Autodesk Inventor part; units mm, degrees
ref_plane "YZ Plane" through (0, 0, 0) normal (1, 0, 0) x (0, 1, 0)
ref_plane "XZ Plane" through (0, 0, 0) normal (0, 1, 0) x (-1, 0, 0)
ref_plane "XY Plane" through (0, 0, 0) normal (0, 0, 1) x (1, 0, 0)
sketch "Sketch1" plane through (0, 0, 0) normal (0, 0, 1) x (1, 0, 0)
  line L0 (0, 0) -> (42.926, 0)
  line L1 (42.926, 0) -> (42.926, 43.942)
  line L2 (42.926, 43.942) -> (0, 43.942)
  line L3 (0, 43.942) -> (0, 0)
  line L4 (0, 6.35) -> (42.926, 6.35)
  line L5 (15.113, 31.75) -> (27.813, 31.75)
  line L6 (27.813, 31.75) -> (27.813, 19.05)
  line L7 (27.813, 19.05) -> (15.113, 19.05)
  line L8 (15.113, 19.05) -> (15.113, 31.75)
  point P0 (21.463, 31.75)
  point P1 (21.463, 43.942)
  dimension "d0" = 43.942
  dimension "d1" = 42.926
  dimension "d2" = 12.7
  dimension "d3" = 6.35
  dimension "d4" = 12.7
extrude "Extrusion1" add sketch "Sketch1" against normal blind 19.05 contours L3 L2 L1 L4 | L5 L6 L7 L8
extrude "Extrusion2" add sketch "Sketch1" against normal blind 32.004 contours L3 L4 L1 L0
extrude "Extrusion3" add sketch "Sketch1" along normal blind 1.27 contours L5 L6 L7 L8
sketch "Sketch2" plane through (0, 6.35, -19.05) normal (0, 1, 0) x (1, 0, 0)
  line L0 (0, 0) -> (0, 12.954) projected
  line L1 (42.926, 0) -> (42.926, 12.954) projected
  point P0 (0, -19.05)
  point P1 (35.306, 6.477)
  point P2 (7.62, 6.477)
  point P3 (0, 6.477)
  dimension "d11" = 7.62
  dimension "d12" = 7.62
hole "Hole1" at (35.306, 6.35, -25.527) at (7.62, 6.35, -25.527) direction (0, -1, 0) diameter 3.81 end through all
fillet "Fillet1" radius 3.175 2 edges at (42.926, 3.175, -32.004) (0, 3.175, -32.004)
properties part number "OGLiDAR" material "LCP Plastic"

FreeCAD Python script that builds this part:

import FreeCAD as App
import Part
import Sketcher
from FreeCAD import Vector
Q = App.Units.Quantity


def edges_at(feature, points):
    """Names of the edges that pass closest to the given points."""
    edges = feature.Shape.Edges
    near = lambda p: min(range(len(edges)), key=lambda i: edges[i].distToShape(Part.Vertex(*p))[0])
    return sorted({f"Edge{near(p) + 1}" for p in points})

doc = App.newDocument("Part")
body = doc.addObject("PartDesign::Body", "Body")

# Sketch on XY plane
sketch1 = doc.addObject("Sketcher::SketchObject", "Sketch")
body.addObject(sketch1)
sketch1.AttachmentSupport = (doc.XY_Plane, [""])
sketch1.MapMode = "FlatFace"
sketch1.addGeometry(Part.LineSegment(Vector(0, 43.942, 0), Vector(0, 6.35, 0)), False)
sketch1.addGeometry(Part.LineSegment(Vector(0, 6.35, 0), Vector(42.926, 6.35, 0)), False)
sketch1.addGeometry(Part.LineSegment(Vector(42.926, 6.35, 0), Vector(42.926, 43.942, 0)), False)
sketch1.addGeometry(Part.LineSegment(Vector(42.926, 43.942, 0), Vector(0, 43.942, 0)), False)
sketch1.addConstraint(Sketcher.Constraint("Coincident", 0, 2, 1, 1))
sketch1.addConstraint(Sketcher.Constraint("Coincident", 1, 2, 2, 1))
sketch1.addConstraint(Sketcher.Constraint("Coincident", 2, 2, 3, 1))
sketch1.addConstraint(Sketcher.Constraint("Coincident", 3, 2, 0, 1))
sketch1.addConstraint(Sketcher.Constraint("Vertical", 0))
sketch1.addConstraint(Sketcher.Constraint("Horizontal", 1))
sketch1.addConstraint(Sketcher.Constraint("Vertical", 2))
sketch1.addConstraint(Sketcher.Constraint("Horizontal", 3))
sketch1.addConstraint(Sketcher.Constraint("PointOnObject", 0, 2, -2))
sketch1.addConstraint(Sketcher.Constraint("DistanceX", 1, 1, 1, 2, Q("1.69 in")))
sketch1.addConstraint(Sketcher.Constraint("DistanceY", -1, 1, 0, 2, Q("0.25 in")))
sketch1.addConstraint(Sketcher.Constraint("DistanceY", -1, 1, 2, 2, Q("1.73 in")))
pad1 = doc.addObject("PartDesign::Pad", "Pad")
body.addObject(pad1)
pad1.Profile = sketch1
pad1.Length = Q("0.75 in")
pad1.Reversed = True

# Sketch on XY plane
sketch2 = doc.addObject("Sketcher::SketchObject", "Sketch001")
body.addObject(sketch2)
sketch2.AttachmentSupport = (doc.XY_Plane, [""])
sketch2.MapMode = "FlatFace"
sketch2.addGeometry(Part.LineSegment(Vector(0, 6.35, 0), Vector(0, 0, 0)), False)
sketch2.addGeometry(Part.LineSegment(Vector(0, 0, 0), Vector(42.926, 0, 0)), False)
sketch2.addGeometry(Part.LineSegment(Vector(42.926, 0, 0), Vector(42.926, 6.35, 0)), False)
sketch2.addGeometry(Part.LineSegment(Vector(42.926, 6.35, 0), Vector(0, 6.35, 0)), False)
sketch2.addConstraint(Sketcher.Constraint("Coincident", 0, 2, 1, 1))
sketch2.addConstraint(Sketcher.Constraint("Coincident", 1, 2, 2, 1))
sketch2.addConstraint(Sketcher.Constraint("Coincident", 2, 2, 3, 1))
sketch2.addConstraint(Sketcher.Constraint("Coincident", 3, 2, 0, 1))
sketch2.addConstraint(Sketcher.Constraint("Vertical", 0))
sketch2.addConstraint(Sketcher.Constraint("Horizontal", 1))
sketch2.addConstraint(Sketcher.Constraint("Vertical", 2))
sketch2.addConstraint(Sketcher.Constraint("Horizontal", 3))
sketch2.addConstraint(Sketcher.Constraint("Coincident", 0, 2, -1, 1))
sketch2.addConstraint(Sketcher.Constraint("DistanceX", 1, 1, 1, 2, Q("1.69 in")))
sketch2.addConstraint(Sketcher.Constraint("DistanceY", 0, 2, 0, 1, Q("0.25 in")))
pad2 = doc.addObject("PartDesign::Pad", "Pad001")
body.addObject(pad2)
pad2.Profile = sketch2
pad2.Length = Q("1.26 in")
pad2.Reversed = True

# Sketch on XY plane
sketch3 = doc.addObject("Sketcher::SketchObject", "Sketch002")
body.addObject(sketch3)
sketch3.AttachmentSupport = (doc.XY_Plane, [""])
sketch3.MapMode = "FlatFace"
sketch3.addGeometry(Part.LineSegment(Vector(27.813, 31.75, 0), Vector(15.113, 31.75, 0)), False)
sketch3.addGeometry(Part.LineSegment(Vector(15.113, 31.75, 0), Vector(15.113, 19.05, 0)), False)
sketch3.addGeometry(Part.LineSegment(Vector(15.113, 19.05, 0), Vector(27.813, 19.05, 0)), False)
sketch3.addGeometry(Part.LineSegment(Vector(27.813, 19.05, 0), Vector(27.813, 31.75, 0)), False)
sketch3.addConstraint(Sketcher.Constraint("Coincident", 0, 2, 1, 1))
sketch3.addConstraint(Sketcher.Constraint("Coincident", 1, 2, 2, 1))
sketch3.addConstraint(Sketcher.Constraint("Coincident", 2, 2, 3, 1))
sketch3.addConstraint(Sketcher.Constraint("Coincident", 3, 2, 0, 1))
sketch3.addConstraint(Sketcher.Constraint("Horizontal", 0))
sketch3.addConstraint(Sketcher.Constraint("Vertical", 1))
sketch3.addConstraint(Sketcher.Constraint("Horizontal", 2))
sketch3.addConstraint(Sketcher.Constraint("Vertical", 3))
sketch3.addConstraint(Sketcher.Constraint("Equal", 2, 1))
sketch3.addConstraint(Sketcher.Constraint("DistanceX", 0, 2, 0, 1, Q("0.5 in")))
sketch3.addConstraint(Sketcher.Constraint("DistanceY", -1, 1, 0, 2, Q("1.25 in")))
sketch3.addConstraint(Sketcher.Constraint("DistanceX", -1, 1, 0, 2, Q("0.595 in")))
pad3 = doc.addObject("PartDesign::Pad", "Pad002")
body.addObject(pad3)
pad3.Profile = sketch3
pad3.Length = Q("0.05 in")

# Sketch on XZ plane
sketch4 = doc.addObject("Sketcher::SketchObject", "Sketch003")
body.addObject(sketch4)
sketch4.AttachmentSupport = (doc.XZ_Plane, [""])
sketch4.MapMode = "FlatFace"
sketch4.AttachmentOffset = App.Placement(Vector(0, 0, -0.25 * 25.4), App.Rotation())
sketch4.addGeometry(Part.Circle(Vector(35.306, -25.527, 0), Vector(0, 0, 1), 1.905), False)
sketch4.addGeometry(Part.Circle(Vector(7.62, -25.527, 0), Vector(0, 0, 1), 1.905), False)
sketch4.addConstraint(Sketcher.Constraint("Equal", 0, 1))
sketch4.addConstraint(Sketcher.Constraint("Horizontal", 0, 3, 1, 3))
sketch4.addConstraint(Sketcher.Constraint("Diameter", 0, Q("0.15 in")))
sketch4.addConstraint(Sketcher.Constraint("DistanceX", -1, 1, 1, 3, Q("0.3 in")))
sketch4.addConstraint(Sketcher.Constraint("DistanceX", -1, 1, 0, 3, Q("1.39 in")))
sketch4.addConstraint(Sketcher.Constraint("DistanceY", 0, 3, -1, 1, Q("1.005 in")))
doc.recompute()
hole = doc.addObject("PartDesign::Hole", "Hole")
body.addObject(hole)
hole.Profile = sketch4
hole.ThreadType = "None"
hole.Diameter = Q("0.15 in")
hole.DepthType = "ThroughAll"
hole.Reversed = True
doc.recompute()

fillet = doc.addObject("PartDesign::Fillet", "Fillet")
body.addObject(fillet)
fillet.Base = (hole, edges_at(hole, [(42.926, 3.175, -32.004), (0, 3.175, -32.004)]))
fillet.Radius = Q("0.125 in")

doc.recompute()
